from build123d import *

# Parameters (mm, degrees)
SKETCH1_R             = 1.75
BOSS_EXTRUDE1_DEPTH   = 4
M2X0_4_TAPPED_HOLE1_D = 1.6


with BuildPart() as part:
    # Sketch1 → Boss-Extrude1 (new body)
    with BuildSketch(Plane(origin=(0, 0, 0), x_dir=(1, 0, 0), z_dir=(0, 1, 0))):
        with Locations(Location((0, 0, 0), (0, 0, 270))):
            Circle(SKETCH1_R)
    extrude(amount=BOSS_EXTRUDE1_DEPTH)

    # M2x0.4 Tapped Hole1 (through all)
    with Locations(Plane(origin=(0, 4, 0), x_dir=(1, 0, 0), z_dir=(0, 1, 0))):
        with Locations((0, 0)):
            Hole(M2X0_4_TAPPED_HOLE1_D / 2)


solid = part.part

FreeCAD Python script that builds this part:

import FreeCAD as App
import Part
import Sketcher
from FreeCAD import Vector
Q = App.Units.Quantity

doc = App.newDocument("Part")
body = doc.addObject("PartDesign::Body", "Body")

# Sketch on XZ plane
sketch1 = body.newObject("Sketcher::SketchObject", "Sketch")
sketch1.AttachmentSupport = (doc.getObject("XZ_Plane"), [""])
sketch1.MapMode = "FlatFace"
sketch1.addGeometry(Part.Circle(Vector(0, 0, 0), Vector(0, 0, 1), 1.8), False)
sketch1.addConstraint(Sketcher.Constraint("Coincident", 0, 3, -1, 1))
sketch1.addConstraint(Sketcher.Constraint("Diameter", 0, Q("3.5 mm")))
pad1 = body.newObject("PartDesign::Pad", "Pad")
pad1.Profile = sketch1
pad1.Length = 4
pad1.Reversed = True

# Sketch on XZ plane
sketch2 = body.newObject("Sketcher::SketchObject", "Sketch001")
sketch2.AttachmentSupport = (doc.getObject("XZ_Plane"), [""])
sketch2.MapMode = "FlatFace"
sketch2.AttachmentOffset = App.Placement(Vector(0, 0, -4), App.Rotation())
sketch2.addGeometry(Part.Circle(Vector(0, 0, 0), Vector(0, 0, 1), 0.8), False)
sketch2.addConstraint(Sketcher.Constraint("Coincident", 0, 3, -1, 1))
sketch2.addConstraint(Sketcher.Constraint("Diameter", 0, Q("1.6 mm")))
doc.recompute()
hole = body.newObject("PartDesign::Hole", "Hole")
hole.Profile = sketch2
hole.ThreadType = "None"
hole.Diameter = 1.6
hole.DepthType = "ThroughAll"
hole.Reversed = True

doc.recompute()
